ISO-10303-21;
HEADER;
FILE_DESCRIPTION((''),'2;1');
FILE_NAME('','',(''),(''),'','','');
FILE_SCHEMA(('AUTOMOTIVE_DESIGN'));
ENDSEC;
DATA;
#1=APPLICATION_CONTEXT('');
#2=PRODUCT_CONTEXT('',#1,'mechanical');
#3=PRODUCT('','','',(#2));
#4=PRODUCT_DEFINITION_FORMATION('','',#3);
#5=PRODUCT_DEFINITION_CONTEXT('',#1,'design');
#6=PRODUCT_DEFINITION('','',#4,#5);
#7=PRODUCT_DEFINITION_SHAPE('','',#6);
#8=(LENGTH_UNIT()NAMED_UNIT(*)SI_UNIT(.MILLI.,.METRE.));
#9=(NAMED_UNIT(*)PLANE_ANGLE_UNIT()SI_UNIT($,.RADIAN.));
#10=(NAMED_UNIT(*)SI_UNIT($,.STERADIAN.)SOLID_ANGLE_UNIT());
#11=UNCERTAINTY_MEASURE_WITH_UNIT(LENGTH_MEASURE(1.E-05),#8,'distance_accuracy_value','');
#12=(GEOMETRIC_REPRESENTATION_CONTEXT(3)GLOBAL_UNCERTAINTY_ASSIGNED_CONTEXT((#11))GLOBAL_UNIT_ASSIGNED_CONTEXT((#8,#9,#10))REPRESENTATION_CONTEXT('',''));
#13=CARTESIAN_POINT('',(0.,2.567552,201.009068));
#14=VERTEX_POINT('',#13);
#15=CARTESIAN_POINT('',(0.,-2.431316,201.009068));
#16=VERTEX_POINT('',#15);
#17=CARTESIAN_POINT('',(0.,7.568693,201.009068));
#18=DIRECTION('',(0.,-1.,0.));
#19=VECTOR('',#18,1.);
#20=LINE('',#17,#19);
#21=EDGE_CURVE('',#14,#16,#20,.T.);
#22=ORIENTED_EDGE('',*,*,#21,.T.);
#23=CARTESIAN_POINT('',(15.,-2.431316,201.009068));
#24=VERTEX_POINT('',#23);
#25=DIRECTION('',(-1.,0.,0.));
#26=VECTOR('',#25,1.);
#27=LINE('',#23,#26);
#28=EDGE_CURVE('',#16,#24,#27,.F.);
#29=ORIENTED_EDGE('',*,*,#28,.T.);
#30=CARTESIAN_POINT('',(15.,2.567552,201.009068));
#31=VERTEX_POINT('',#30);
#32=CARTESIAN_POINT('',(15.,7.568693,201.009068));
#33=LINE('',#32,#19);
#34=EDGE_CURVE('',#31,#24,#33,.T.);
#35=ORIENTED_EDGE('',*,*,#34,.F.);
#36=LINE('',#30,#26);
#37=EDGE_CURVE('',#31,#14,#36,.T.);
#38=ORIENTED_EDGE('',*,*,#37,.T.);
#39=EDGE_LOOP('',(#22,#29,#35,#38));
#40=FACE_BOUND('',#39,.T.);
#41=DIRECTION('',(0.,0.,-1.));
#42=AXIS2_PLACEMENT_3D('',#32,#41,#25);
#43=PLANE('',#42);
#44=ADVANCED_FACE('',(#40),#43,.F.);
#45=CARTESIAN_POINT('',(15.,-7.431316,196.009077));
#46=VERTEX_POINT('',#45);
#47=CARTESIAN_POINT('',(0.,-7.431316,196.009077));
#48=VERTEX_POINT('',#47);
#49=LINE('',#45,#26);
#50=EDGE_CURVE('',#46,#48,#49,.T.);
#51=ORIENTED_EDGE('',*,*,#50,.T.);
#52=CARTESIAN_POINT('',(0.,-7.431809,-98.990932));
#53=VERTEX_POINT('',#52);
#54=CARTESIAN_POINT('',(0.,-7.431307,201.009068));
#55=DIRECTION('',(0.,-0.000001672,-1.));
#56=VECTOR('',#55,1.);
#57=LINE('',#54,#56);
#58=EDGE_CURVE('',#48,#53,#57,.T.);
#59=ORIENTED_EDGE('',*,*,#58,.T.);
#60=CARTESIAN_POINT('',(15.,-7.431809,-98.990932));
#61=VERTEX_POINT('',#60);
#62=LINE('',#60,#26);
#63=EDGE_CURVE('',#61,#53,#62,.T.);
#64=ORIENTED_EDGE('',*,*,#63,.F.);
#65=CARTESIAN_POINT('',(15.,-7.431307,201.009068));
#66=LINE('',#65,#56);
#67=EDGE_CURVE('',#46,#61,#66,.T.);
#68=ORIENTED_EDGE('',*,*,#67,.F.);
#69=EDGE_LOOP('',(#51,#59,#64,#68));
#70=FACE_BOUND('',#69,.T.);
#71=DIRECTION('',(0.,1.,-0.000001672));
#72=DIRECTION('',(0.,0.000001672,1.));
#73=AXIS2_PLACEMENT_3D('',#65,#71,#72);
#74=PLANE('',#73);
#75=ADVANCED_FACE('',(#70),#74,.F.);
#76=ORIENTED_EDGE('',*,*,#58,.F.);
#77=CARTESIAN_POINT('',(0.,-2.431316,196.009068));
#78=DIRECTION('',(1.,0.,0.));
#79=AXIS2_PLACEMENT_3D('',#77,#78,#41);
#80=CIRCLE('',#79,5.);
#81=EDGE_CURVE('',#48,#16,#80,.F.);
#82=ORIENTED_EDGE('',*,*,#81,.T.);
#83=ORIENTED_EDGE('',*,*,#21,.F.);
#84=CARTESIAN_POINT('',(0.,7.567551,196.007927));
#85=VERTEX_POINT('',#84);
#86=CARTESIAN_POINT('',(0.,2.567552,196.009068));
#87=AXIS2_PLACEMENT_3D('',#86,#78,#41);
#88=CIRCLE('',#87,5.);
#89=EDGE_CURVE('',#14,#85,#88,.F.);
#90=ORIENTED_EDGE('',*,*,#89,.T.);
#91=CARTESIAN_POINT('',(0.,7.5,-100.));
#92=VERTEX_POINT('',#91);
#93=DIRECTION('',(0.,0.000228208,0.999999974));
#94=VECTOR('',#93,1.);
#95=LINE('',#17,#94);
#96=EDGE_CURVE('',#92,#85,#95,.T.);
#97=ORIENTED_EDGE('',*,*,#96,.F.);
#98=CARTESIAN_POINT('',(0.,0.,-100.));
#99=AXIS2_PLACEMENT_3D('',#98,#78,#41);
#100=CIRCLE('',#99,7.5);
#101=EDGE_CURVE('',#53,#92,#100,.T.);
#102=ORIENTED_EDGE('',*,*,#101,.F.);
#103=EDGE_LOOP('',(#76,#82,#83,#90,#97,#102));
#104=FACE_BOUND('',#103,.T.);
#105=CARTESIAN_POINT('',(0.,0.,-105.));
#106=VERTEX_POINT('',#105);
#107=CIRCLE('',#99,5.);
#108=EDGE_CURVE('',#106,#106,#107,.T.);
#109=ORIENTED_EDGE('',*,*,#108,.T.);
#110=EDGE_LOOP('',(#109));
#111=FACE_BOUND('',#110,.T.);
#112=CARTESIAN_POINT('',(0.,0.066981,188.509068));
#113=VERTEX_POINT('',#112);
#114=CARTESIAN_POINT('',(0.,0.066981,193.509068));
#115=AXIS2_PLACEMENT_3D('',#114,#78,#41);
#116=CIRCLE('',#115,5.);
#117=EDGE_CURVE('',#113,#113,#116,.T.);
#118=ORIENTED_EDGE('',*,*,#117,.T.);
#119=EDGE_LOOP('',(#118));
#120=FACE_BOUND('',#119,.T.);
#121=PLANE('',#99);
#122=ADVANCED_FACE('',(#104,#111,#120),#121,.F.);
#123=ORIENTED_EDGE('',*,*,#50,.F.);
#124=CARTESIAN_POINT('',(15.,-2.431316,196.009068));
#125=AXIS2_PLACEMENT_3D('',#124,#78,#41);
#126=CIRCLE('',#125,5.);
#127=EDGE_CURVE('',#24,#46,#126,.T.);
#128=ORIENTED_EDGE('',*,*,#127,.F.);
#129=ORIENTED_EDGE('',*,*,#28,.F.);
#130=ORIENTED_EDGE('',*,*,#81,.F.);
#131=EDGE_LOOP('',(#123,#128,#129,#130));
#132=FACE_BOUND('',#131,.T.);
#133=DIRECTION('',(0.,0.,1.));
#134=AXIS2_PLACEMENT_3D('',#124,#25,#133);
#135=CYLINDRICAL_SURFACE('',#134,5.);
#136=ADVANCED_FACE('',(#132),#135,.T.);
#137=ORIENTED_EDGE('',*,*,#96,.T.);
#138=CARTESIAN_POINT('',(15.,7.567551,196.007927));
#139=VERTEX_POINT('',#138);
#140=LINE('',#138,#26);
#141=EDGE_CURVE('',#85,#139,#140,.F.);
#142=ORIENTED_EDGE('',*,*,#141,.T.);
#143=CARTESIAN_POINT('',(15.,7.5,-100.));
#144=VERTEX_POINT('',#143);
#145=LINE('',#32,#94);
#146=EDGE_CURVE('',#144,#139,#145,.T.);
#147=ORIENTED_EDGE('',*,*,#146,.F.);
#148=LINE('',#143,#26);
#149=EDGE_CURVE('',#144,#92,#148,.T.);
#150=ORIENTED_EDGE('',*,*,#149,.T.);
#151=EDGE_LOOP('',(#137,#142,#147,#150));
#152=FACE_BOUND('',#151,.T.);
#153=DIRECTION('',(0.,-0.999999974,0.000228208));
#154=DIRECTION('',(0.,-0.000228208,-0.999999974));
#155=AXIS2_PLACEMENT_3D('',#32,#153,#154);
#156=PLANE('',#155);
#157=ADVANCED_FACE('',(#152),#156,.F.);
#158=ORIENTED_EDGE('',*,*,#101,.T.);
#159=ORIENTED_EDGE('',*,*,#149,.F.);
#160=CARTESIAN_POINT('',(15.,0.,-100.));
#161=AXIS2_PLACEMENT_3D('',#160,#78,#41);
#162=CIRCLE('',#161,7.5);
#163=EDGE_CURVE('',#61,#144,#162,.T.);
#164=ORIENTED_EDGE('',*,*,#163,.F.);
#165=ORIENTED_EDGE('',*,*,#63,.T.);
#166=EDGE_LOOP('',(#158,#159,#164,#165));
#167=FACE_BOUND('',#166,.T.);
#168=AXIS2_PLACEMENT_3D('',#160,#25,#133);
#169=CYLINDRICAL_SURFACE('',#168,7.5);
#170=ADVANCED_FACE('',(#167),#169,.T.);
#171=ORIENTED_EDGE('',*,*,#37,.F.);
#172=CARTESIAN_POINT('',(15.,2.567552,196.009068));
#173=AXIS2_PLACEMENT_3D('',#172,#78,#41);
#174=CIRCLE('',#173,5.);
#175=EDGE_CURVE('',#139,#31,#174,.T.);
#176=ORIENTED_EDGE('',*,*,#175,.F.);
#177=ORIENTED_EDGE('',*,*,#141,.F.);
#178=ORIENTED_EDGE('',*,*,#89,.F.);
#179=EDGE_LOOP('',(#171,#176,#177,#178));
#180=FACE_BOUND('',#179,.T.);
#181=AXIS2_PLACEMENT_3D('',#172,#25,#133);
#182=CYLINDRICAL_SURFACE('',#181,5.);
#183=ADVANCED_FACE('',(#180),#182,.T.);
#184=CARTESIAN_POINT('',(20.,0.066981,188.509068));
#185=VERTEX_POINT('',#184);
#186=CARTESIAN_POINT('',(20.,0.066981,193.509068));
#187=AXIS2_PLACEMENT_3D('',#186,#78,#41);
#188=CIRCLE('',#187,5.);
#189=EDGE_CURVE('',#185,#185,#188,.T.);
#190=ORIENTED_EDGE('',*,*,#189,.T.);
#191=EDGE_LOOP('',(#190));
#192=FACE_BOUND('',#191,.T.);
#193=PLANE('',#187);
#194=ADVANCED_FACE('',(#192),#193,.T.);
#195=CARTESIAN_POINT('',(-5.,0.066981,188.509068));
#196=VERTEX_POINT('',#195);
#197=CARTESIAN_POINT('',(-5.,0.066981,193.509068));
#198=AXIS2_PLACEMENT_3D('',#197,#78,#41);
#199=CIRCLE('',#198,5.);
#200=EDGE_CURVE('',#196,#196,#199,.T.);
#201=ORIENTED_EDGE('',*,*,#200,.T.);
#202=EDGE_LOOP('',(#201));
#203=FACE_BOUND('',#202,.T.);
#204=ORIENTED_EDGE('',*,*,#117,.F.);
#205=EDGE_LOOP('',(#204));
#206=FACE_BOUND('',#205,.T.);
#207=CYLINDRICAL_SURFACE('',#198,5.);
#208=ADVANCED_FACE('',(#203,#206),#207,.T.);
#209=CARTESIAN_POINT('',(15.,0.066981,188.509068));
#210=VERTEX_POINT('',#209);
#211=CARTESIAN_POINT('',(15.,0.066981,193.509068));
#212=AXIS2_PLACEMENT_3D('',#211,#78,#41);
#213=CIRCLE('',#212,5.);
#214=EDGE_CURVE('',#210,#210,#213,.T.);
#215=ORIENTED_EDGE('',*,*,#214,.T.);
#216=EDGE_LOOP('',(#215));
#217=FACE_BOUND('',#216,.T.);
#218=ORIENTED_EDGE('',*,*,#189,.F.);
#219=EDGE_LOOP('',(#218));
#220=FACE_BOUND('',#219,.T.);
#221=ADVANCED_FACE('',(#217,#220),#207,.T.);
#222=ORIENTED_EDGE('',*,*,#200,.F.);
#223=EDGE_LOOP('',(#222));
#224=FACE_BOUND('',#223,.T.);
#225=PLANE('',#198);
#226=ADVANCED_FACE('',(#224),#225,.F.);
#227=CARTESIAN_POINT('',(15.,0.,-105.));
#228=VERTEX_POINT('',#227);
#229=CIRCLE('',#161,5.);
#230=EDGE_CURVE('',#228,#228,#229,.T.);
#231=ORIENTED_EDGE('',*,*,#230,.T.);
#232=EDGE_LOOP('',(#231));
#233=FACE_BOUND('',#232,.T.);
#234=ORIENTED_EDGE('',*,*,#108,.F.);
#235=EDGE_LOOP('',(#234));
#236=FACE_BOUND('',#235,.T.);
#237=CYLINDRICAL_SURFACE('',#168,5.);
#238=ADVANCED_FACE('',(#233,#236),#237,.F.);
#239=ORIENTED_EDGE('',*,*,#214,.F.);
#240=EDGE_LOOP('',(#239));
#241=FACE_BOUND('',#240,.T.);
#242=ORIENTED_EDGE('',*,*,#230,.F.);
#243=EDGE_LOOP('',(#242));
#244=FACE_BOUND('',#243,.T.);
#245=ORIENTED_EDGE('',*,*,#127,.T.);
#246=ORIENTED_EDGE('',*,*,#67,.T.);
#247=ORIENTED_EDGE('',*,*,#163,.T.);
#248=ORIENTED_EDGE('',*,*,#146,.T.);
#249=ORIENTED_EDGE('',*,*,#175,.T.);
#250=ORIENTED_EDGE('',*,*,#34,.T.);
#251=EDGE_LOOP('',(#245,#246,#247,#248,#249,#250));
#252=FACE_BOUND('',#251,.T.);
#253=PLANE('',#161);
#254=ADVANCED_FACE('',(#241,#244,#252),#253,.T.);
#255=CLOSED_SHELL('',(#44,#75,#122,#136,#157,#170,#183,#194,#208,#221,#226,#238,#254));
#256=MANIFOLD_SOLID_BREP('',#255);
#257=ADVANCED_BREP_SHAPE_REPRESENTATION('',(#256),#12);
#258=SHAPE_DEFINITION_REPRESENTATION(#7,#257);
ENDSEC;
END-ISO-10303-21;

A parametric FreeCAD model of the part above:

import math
import FreeCAD as App
import Part
import Sketcher

V = App.Vector
Q = App.Units.Quantity


def edges_at(feature, points):
    """Names of the edges that pass closest to the given points."""
    edges = feature.Shape.Edges
    near = lambda p: min(range(len(edges)), key=lambda i: edges[i].distToShape(Part.Vertex(*p))[0])
    return sorted({f"Edge{near(p) + 1}" for p in points})

doc = App.newDocument("Part")
params = doc.addObject("Spreadsheet::Sheet", "Params")
for row, (alias, value) in enumerate([
    ("sketch1_diameter", "10 mm"),
    ("sketch1_radius", "7.5 mm"),
    ("sketch1_width", "15 mm"),
    ("sketch1_length", "300 mm"),
    ("pad1_length", "15 mm"),
    ("sketch2_diameter", "10 mm"),
    ("pad2_length", "5 mm"),
    ("pad2_length2", "20 mm"),
    ("fillet_radius", "5 mm"),
], start=1):
    params.set(f"A{row}", alias)
    params.set(f"B{row}", "=" + value)
    params.setAlias(f"B{row}", alias)

body = doc.addObject("PartDesign::Body", "Body")

sketch1 = body.newObject("Sketcher::SketchObject", "Sketch")
sketch1.AttachmentSupport = (doc.getObject("YZ_Plane"), [""])
sketch1.MapMode = "FlatFace"
sketch1.addGeometry(Part.LineSegment(V(7.5, -100, 0), V(7.568693, 201.009068, 0)), False)
sketch1.addGeometry(Part.LineSegment(V(7.568693, 201.009068, 0), V(-7.431307, 201.009068, 0)), False)
sketch1.addGeometry(Part.LineSegment(V(-7.431307, 201.009068, 0), V(-7.431809, -98.990932, 0)), False)
sketch1.addGeometry(Part.ArcOfCircle(Part.Circle(V(0, -100, 0), V(0, 0, 1), 7.5), math.radians(172.267839), math.radians(360)), False)
sketch1.addGeometry(Part.Circle(V(0, -100, 0), V(0, 0, 1), 5), False)
sketch1.addConstraint(Sketcher.Constraint("Coincident", 0, 2, 1, 1))
sketch1.addConstraint(Sketcher.Constraint("Coincident", 1, 2, 2, 1))
sketch1.addConstraint(Sketcher.Constraint("Coincident", 2, 2, 3, 1))
sketch1.addConstraint(Sketcher.Constraint("Coincident", 3, 2, 0, 1))
sketch1.addConstraint(Sketcher.Constraint("Horizontal", 1))
sketch1.addConstraint(Sketcher.Constraint("Coincident", 4, 3, 3, 3))
sketch1.addConstraint(Sketcher.Constraint("PointOnObject", 3, 3, -2))
sketch1.addConstraint(Sketcher.Constraint("Horizontal", 4, 3, 3, 2))
sketch1.addConstraint(Sketcher.Constraint("Diameter", 4, Q("10 mm")))
sketch1.addConstraint(Sketcher.Constraint("Radius", 3, Q("7.5 mm")))
sketch1.addConstraint(Sketcher.Constraint("DistanceX", 1, 2, 1, 1, Q("15 mm")))
sketch1.addConstraint(Sketcher.Constraint("Distance", 2, Q("300 mm")))
sketch1.addConstraint(Sketcher.Constraint("DistanceY", 3, 3, -1, 1, Q("100 mm")))
sketch1.addConstraint(Sketcher.Constraint("DistanceX", 2, 2, 1, 2, Q("0.000502 mm")))
sketch1.addConstraint(Sketcher.Constraint("DistanceY", -1, 1, 0, 2, Q("201.009068 mm")))
sketch1.setExpression("Constraints[8]", "Params.sketch1_diameter")
sketch1.setExpression("Constraints[9]", "Params.sketch1_radius")
sketch1.setExpression("Constraints[10]", "Params.sketch1_width")
sketch1.setExpression("Constraints[11]", "Params.sketch1_length")
pad1 = body.newObject("PartDesign::Pad", "Pad")
pad1.Profile = sketch1
pad1.setExpression("Length", "Params.pad1_length")

sketch2 = body.newObject("Sketcher::SketchObject", "Sketch001")
sketch2.AttachmentSupport = (doc.getObject("YZ_Plane"), [""])
sketch2.MapMode = "FlatFace"
sketch2.AttachmentOffset = App.Placement(V(0, 0, 15), App.Rotation())
sketch2.addGeometry(Part.Circle(V(0.066981, 193.509068, 0), V(0, 0, 1), 5), False)
sketch2.addConstraint(Sketcher.Constraint("Diameter", 0, Q("10 mm")))
sketch2.addConstraint(Sketcher.Constraint("DistanceX", -1, 1, 0, 3, Q("0.066981 mm")))
sketch2.addConstraint(Sketcher.Constraint("DistanceY", -1, 1, 0, 3, Q("193.509068 mm")))
sketch2.setExpression("Constraints[0]", "Params.sketch2_diameter")
pad2 = body.newObject("PartDesign::Pad", "Pad001")
pad2.Profile = sketch2
pad2.Type = "TwoLengths"
pad2.setExpression("Length", "Params.pad2_length")
pad2.setExpression("Length2", "Params.pad2_length2")
doc.recompute()

fillet = body.newObject("PartDesign::Fillet", "Fillet")
fillet.Base = (pad2, edges_at(pad2, [(7.5, 7.569, 201.009), (7.5, -7.431, 201.009)]))
fillet.setExpression("Radius", "Params.fillet_radius")

doc.recompute()
